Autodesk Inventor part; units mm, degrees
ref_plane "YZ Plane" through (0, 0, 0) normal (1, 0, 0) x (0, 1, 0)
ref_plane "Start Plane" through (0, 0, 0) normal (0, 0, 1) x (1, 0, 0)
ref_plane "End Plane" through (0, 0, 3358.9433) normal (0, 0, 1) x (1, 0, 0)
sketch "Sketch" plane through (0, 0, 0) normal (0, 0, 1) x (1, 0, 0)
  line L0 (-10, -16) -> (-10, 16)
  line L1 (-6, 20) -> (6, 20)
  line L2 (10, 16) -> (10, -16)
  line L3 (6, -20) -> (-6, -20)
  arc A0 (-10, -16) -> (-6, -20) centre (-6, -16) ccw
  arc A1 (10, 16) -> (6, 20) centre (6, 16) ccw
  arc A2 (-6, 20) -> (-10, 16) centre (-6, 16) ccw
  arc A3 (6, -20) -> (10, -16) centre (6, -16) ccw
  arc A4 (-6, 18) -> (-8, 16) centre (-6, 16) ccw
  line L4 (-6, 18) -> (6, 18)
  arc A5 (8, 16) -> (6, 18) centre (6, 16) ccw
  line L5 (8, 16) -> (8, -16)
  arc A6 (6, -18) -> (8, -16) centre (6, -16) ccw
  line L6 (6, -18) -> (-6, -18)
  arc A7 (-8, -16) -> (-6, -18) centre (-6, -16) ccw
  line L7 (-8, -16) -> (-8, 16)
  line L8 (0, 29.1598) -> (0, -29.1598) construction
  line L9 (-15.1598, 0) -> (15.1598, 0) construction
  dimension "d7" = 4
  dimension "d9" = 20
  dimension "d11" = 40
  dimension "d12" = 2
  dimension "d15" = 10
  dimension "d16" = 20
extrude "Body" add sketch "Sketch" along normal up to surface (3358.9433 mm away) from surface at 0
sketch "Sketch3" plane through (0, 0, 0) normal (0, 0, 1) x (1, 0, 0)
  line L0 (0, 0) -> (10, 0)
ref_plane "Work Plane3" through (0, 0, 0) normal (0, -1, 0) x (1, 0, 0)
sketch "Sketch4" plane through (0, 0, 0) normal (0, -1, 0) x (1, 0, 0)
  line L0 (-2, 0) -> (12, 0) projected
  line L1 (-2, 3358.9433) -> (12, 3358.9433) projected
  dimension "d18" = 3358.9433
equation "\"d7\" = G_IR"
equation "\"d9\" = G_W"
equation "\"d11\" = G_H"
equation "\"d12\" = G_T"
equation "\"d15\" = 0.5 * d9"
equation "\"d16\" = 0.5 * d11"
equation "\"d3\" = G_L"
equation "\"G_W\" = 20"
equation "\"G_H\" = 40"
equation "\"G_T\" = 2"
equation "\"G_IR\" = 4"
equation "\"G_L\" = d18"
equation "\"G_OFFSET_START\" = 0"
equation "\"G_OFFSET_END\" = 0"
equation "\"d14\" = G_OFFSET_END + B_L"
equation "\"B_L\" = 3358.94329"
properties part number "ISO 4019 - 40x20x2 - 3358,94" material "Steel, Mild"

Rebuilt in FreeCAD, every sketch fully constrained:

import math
import FreeCAD as App
import Part
import Sketcher
Q = App.Units.Quantity

doc = App.newDocument("Part")
body = doc.addObject("PartDesign::Body", "Body")

# Sketch on XY plane
sketch1 = doc.addObject("Sketcher::SketchObject", "Sketch")
body.addObject(sketch1)
sketch1.AttachmentSupport = (doc.XY_Plane, [""])
sketch1.MapMode = "FlatFace"
sketch1.addGeometry(Part.LineSegment(App.Vector(-10, 16, 0), App.Vector(-10, -16, 0)), False)
sketch1.addGeometry(Part.ArcOfCircle(Part.Circle(App.Vector(-6, -16, 0), App.Vector(0, 0, 1), 4), math.radians(180), math.radians(270)), False)
sketch1.addGeometry(Part.LineSegment(App.Vector(-6, -20, 0), App.Vector(6, -20, 0)), False)
sketch1.addGeometry(Part.ArcOfCircle(Part.Circle(App.Vector(6, -16, 0), App.Vector(0, 0, 1), 4), math.radians(-90), math.radians(0)), False)
sketch1.addGeometry(Part.LineSegment(App.Vector(10, -16, 0), App.Vector(10, 16, 0)), False)
sketch1.addGeometry(Part.ArcOfCircle(Part.Circle(App.Vector(6, 16, 0), App.Vector(0, 0, 1), 4), math.radians(0), math.radians(90)), False)
sketch1.addGeometry(Part.LineSegment(App.Vector(6, 20, 0), App.Vector(-6, 20, 0)), False)
sketch1.addGeometry(Part.ArcOfCircle(Part.Circle(App.Vector(-6, 16, 0), App.Vector(0, 0, 1), 4), math.radians(90), math.radians(180)), False)
sketch1.addGeometry(Part.ArcOfCircle(Part.Circle(App.Vector(-6, 16, 0), App.Vector(0, 0, 1), 2), math.radians(90), math.radians(180)), False)
sketch1.addGeometry(Part.LineSegment(App.Vector(-6, 18, 0), App.Vector(6, 18, 0)), False)
sketch1.addGeometry(Part.ArcOfCircle(Part.Circle(App.Vector(6, 16, 0), App.Vector(0, 0, 1), 2), math.radians(0), math.radians(90)), False)
sketch1.addGeometry(Part.LineSegment(App.Vector(8, 16, 0), App.Vector(8, -16, 0)), False)
sketch1.addGeometry(Part.ArcOfCircle(Part.Circle(App.Vector(6, -16, 0), App.Vector(0, 0, 1), 2), math.radians(-90), math.radians(0)), False)
sketch1.addGeometry(Part.LineSegment(App.Vector(6, -18, 0), App.Vector(-6, -18, 0)), False)
sketch1.addGeometry(Part.ArcOfCircle(Part.Circle(App.Vector(-6, -16, 0), App.Vector(0, 0, 1), 2), math.radians(180), math.radians(270)), False)
sketch1.addGeometry(Part.LineSegment(App.Vector(-8, -16, 0), App.Vector(-8, 16, 0)), False)
sketch1.addConstraint(Sketcher.Constraint("Tangent", 0, 2, 1, 1))
sketch1.addConstraint(Sketcher.Constraint("Tangent", 1, 2, 2, 1))
sketch1.addConstraint(Sketcher.Constraint("Tangent", 2, 2, 3, 1))
sketch1.addConstraint(Sketcher.Constraint("Tangent", 3, 2, 4, 1))
sketch1.addConstraint(Sketcher.Constraint("Tangent", 4, 2, 5, 1))
sketch1.addConstraint(Sketcher.Constraint("Tangent", 5, 2, 6, 1))
sketch1.addConstraint(Sketcher.Constraint("Tangent", 6, 2, 7, 1))
sketch1.addConstraint(Sketcher.Constraint("Tangent", 7, 2, 0, 1))
sketch1.addConstraint(Sketcher.Constraint("Tangent", 8, 1, 9, 1))
sketch1.addConstraint(Sketcher.Constraint("Tangent", 9, 2, 10, 2))
sketch1.addConstraint(Sketcher.Constraint("Tangent", 10, 1, 11, 1))
sketch1.addConstraint(Sketcher.Constraint("Tangent", 11, 2, 12, 2))
sketch1.addConstraint(Sketcher.Constraint("Tangent", 12, 1, 13, 1))
sketch1.addConstraint(Sketcher.Constraint("Tangent", 13, 2, 14, 2))
sketch1.addConstraint(Sketcher.Constraint("Tangent", 14, 1, 15, 1))
sketch1.addConstraint(Sketcher.Constraint("Tangent", 15, 2, 8, 2))
sketch1.addConstraint(Sketcher.Constraint("Vertical", 0))
sketch1.addConstraint(Sketcher.Constraint("Horizontal", 2))
sketch1.addConstraint(Sketcher.Constraint("Vertical", 4))
sketch1.addConstraint(Sketcher.Constraint("Horizontal", 6))
sketch1.addConstraint(Sketcher.Constraint("Horizontal", 9))
sketch1.addConstraint(Sketcher.Constraint("Vertical", 11))
sketch1.addConstraint(Sketcher.Constraint("Horizontal", 13))
sketch1.addConstraint(Sketcher.Constraint("Vertical", 15))
sketch1.addConstraint(Sketcher.Constraint("Coincident", 8, 3, 7, 3))
sketch1.addConstraint(Sketcher.Constraint("Coincident", 10, 3, 5, 3))
sketch1.addConstraint(Sketcher.Constraint("Coincident", 12, 3, 3, 3))
sketch1.addConstraint(Sketcher.Constraint("Equal", 1, 3))
sketch1.addConstraint(Sketcher.Constraint("Equal", 3, 5))
sketch1.addConstraint(Sketcher.Constraint("Equal", 5, 7))
sketch1.addConstraint(Sketcher.Constraint("Equal", 12, 14))
sketch1.addConstraint(Sketcher.Constraint("Symmetric", 1, 3, 5, 3, -1, 1))
sketch1.addConstraint(Sketcher.Constraint("Radius", 1, Q("4 mm")))
sketch1.addConstraint(Sketcher.Constraint("Radius", 8, Q("2 mm")))
sketch1.addConstraint(Sketcher.Constraint("DistanceX", 0, 2, -1, 1, Q("10 mm")))
sketch1.addConstraint(Sketcher.Constraint("DistanceY", 1, 2, -1, 1, Q("20 mm")))
pad1 = doc.addObject("PartDesign::Pad", "Pad")
body.addObject(pad1)
pad1.Profile = sketch1
pad1.Length = 3358.9433

doc.recompute()
